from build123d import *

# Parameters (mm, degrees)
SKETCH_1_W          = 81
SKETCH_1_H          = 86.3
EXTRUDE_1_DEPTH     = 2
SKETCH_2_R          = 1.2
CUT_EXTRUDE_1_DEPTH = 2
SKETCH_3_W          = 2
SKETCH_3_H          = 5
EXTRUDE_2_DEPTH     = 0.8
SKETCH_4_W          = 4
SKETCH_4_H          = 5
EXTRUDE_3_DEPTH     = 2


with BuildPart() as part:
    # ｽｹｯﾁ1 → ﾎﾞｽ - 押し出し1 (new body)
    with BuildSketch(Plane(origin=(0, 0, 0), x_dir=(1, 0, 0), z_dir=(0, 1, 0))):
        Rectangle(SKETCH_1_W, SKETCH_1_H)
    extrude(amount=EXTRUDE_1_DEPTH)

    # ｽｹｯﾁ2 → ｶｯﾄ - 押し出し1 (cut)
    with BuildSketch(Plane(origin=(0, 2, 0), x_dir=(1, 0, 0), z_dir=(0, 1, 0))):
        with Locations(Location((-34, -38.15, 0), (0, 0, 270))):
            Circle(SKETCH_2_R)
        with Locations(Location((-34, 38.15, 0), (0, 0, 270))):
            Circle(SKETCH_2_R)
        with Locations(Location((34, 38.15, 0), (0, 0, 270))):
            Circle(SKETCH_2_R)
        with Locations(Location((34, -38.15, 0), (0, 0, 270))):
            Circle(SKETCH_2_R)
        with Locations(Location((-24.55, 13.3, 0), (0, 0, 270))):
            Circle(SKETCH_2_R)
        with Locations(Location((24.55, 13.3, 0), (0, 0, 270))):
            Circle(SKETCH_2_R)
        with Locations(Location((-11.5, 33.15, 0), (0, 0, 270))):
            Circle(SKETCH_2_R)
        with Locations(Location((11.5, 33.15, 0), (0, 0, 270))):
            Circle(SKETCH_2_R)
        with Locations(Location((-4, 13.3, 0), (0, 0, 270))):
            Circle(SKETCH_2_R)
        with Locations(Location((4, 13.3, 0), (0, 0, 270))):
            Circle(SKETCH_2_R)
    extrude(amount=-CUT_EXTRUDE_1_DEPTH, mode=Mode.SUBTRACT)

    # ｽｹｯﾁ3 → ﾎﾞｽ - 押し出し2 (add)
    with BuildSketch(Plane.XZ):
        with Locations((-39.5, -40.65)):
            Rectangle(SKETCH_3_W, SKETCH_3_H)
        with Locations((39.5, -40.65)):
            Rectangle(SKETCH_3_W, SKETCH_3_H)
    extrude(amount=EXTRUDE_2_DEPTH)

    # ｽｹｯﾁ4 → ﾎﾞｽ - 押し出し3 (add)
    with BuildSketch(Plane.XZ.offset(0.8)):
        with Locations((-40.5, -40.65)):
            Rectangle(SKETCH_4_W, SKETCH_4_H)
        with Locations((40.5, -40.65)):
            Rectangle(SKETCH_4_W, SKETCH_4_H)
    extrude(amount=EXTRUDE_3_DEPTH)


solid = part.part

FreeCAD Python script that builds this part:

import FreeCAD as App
import Part
import Sketcher
from FreeCAD import Vector
Q = App.Units.Quantity


def add_polygon(sketch, points):
    """Adds a closed chain of lines whose ends are joined by coincident constraints."""
    first, n = sketch.GeometryCount, len(points)
    for a, b in zip(points, points[1:] + points[:1]):
        sketch.addGeometry(Part.LineSegment(App.Vector(*a, 0), App.Vector(*b, 0)), False)
    for i in range(n):
        sketch.addConstraint(Sketcher.Constraint("Coincident", first + i, 2, first + (i + 1) % n, 1))

doc = App.newDocument("Part")
body = doc.addObject("PartDesign::Body", "Body")

sketch1 = doc.addObject("Sketcher::SketchObject", "Sketch")
body.addObject(sketch1)
sketch1.AttachmentSupport = (doc.XZ_Plane, [""])
sketch1.MapMode = "FlatFace"
add_polygon(sketch1, [(-40, -43), (-40, 43), (40, 43), (40, -43)])
sketch1.addConstraint([
    Sketcher.Constraint("Vertical", 0),
    Sketcher.Constraint("Horizontal", 1),
    Sketcher.Constraint("Vertical", 2),
    Sketcher.Constraint("Horizontal", 3),
    Sketcher.Constraint("Symmetric", 0, 2, 2, 2, -1, 1),
    Sketcher.Constraint("DistanceX", 1, 1, 1, 2, Q("81 mm")),
    Sketcher.Constraint("DistanceY", 0, 1, 0, 2, Q("86.3 mm")),
])
pad1 = doc.addObject("PartDesign::Pad", "Pad")
body.addObject(pad1)
pad1.Profile = sketch1
pad1.Length = 2
pad1.Reversed = True

sketch2 = doc.addObject("Sketcher::SketchObject", "Sketch001")
body.addObject(sketch2)
sketch2.AttachmentSupport = (doc.XZ_Plane, [""])
sketch2.MapMode = "FlatFace"
sketch2.AttachmentOffset = App.Placement(Vector(0, 0, -2), App.Rotation())
sketch2.addGeometry([
    Part.Circle(Vector(-34, 38.1, 0), Vector(0, 0, 1), 1.2),
    Part.Circle(Vector(-34, -38.1, 0), Vector(0, 0, 1), 1.2),
    Part.Circle(Vector(34, -38.1, 0), Vector(0, 0, 1), 1.2),
    Part.Circle(Vector(34, 38.1, 0), Vector(0, 0, 1), 1.2),
    Part.Circle(Vector(-24.6, -13.3, 0), Vector(0, 0, 1), 1.2),
    Part.Circle(Vector(24.6, -13.3, 0), Vector(0, 0, 1), 1.2),
    Part.Circle(Vector(-11.5, -33.1, 0), Vector(0, 0, 1), 1.2),
    Part.Circle(Vector(11.5, -33.1, 0), Vector(0, 0, 1), 1.2),
    Part.Circle(Vector(-4, -13.3, 0), Vector(0, 0, 1), 1.2),
    Part.Circle(Vector(4, -13.3, 0), Vector(0, 0, 1), 1.2),
], False)
sketch2.addConstraint([
    Sketcher.Constraint("Equal", 0, 1),
    Sketcher.Constraint("Equal", 1, 2),
    Sketcher.Constraint("Equal", 2, 3),
    Sketcher.Constraint("Equal", 3, 4),
    Sketcher.Constraint("Equal", 4, 5),
    Sketcher.Constraint("Equal", 5, 6),
    Sketcher.Constraint("Equal", 6, 7),
    Sketcher.Constraint("Equal", 7, 8),
    Sketcher.Constraint("Equal", 8, 9),
    Sketcher.Constraint("Symmetric", 0, 3, 2, 3, -1, 1),
    Sketcher.Constraint("Symmetric", 1, 3, 3, 3, -1, 1),
    Sketcher.Constraint("Symmetric", 1, 3, 2, 3, -2),
    Sketcher.Constraint("Symmetric", 4, 3, 5, 3, -2),
    Sketcher.Constraint("Symmetric", 6, 3, 7, 3, -2),
    Sketcher.Constraint("Symmetric", 8, 3, 9, 3, -2),
    Sketcher.Constraint("Horizontal", 5, 3, 8, 3),
    Sketcher.Constraint("Diameter", 0, Q("2.4 mm")),
    Sketcher.Constraint("DistanceX", 0, 3, -1, 1, Q("34 mm")),
    Sketcher.Constraint("DistanceX", 8, 3, -1, 1, Q("4 mm")),
    Sketcher.Constraint("DistanceY", 1, 3, 6, 3, Q("5 mm")),
    Sketcher.Constraint("DistanceX", 6, 3, 7, 3, Q("23 mm")),
    Sketcher.Constraint("DistanceY", 4, 3, -1, 1, Q("13.3 mm")),
    Sketcher.Constraint("DistanceY", 1, 3, 0, 3, Q("76.3 mm")),
    Sketcher.Constraint("DistanceX", 4, 3, 5, 3, Q("49.1 mm")),
])
pocket1 = doc.addObject("PartDesign::Pocket", "Pocket")
body.addObject(pocket1)
pocket1.Profile = sketch2
pocket1.Length = 2
pocket1.Reversed = True

sketch3 = doc.addObject("Sketcher::SketchObject", "Sketch002")
body.addObject(sketch3)
sketch3.AttachmentSupport = (doc.XZ_Plane, [""])
sketch3.MapMode = "FlatFace"
add_polygon(sketch3, [(-40.5, -38.1), (-40.5, -43.1), (-38.5, -43.1), (-38.5, -38.1)])
add_polygon(sketch3, [(38.5, -38.1), (38.5, -43.1), (40.5, -43.1), (40.5, -38.1)])
sketch3.addConstraint([
    Sketcher.Constraint("Vertical", 0),
    Sketcher.Constraint("Horizontal", 1),
    Sketcher.Constraint("Vertical", 2),
    Sketcher.Constraint("Horizontal", 3),
    Sketcher.Constraint("Vertical", 4),
    Sketcher.Constraint("Horizontal", 5),
    Sketcher.Constraint("Vertical", 6),
    Sketcher.Constraint("Horizontal", 7),
    Sketcher.Constraint("Symmetric", 1, 2, 4, 2, -2),
    Sketcher.Constraint("Symmetric", 3, 2, 6, 2, -2),
    Sketcher.Constraint("DistanceX", 1, 1, 1, 2, Q("2 mm")),
    Sketcher.Constraint("DistanceY", 0, 2, 0, 1, Q("5 mm")),
    Sketcher.Constraint("DistanceX", 1, 2, 4, 2, Q("77 mm")),
    Sketcher.Constraint("DistanceY", 0, 2, -1, 1, Q("43.15 mm")),
])
pad2 = doc.addObject("PartDesign::Pad", "Pad001")
body.addObject(pad2)
pad2.Profile = sketch3
pad2.Length = 0.8

sketch4 = doc.addObject("Sketcher::SketchObject", "Sketch003")
body.addObject(sketch4)
sketch4.AttachmentSupport = (doc.XZ_Plane, [""])
sketch4.MapMode = "FlatFace"
sketch4.AttachmentOffset = App.Placement(Vector(0, 0, 0.8), App.Rotation())
add_polygon(sketch4, [(-42.5, -38.1), (-42.5, -43.1), (-38.5, -43.1), (-38.5, -38.1)])
add_polygon(sketch4, [(38.5, -38.1), (38.5, -43.1), (42.5, -43.1), (42.5, -38.1)])
sketch4.addConstraint([
    Sketcher.Constraint("Vertical", 0),
    Sketcher.Constraint("Horizontal", 1),
    Sketcher.Constraint("Vertical", 2),
    Sketcher.Constraint("Horizontal", 3),
    Sketcher.Constraint("Vertical", 4),
    Sketcher.Constraint("Horizontal", 5),
    Sketcher.Constraint("Vertical", 6),
    Sketcher.Constraint("Horizontal", 7),
    Sketcher.Constraint("Symmetric", 1, 2, 4, 2, -2),
    Sketcher.Constraint("Symmetric", 3, 2, 6, 2, -2),
    Sketcher.Constraint("DistanceX", 1, 1, 1, 2, Q("4 mm")),
    Sketcher.Constraint("DistanceY", 0, 2, 0, 1, Q("5 mm")),
    Sketcher.Constraint("DistanceX", 1, 2, 4, 2, Q("77 mm")),
    Sketcher.Constraint("DistanceY", 0, 2, -1, 1, Q("43.15 mm")),
])
pad3 = doc.addObject("PartDesign::Pad", "Pad002")
body.addObject(pad3)
pad3.Profile = sketch4
pad3.Length = 2

doc.recompute()
